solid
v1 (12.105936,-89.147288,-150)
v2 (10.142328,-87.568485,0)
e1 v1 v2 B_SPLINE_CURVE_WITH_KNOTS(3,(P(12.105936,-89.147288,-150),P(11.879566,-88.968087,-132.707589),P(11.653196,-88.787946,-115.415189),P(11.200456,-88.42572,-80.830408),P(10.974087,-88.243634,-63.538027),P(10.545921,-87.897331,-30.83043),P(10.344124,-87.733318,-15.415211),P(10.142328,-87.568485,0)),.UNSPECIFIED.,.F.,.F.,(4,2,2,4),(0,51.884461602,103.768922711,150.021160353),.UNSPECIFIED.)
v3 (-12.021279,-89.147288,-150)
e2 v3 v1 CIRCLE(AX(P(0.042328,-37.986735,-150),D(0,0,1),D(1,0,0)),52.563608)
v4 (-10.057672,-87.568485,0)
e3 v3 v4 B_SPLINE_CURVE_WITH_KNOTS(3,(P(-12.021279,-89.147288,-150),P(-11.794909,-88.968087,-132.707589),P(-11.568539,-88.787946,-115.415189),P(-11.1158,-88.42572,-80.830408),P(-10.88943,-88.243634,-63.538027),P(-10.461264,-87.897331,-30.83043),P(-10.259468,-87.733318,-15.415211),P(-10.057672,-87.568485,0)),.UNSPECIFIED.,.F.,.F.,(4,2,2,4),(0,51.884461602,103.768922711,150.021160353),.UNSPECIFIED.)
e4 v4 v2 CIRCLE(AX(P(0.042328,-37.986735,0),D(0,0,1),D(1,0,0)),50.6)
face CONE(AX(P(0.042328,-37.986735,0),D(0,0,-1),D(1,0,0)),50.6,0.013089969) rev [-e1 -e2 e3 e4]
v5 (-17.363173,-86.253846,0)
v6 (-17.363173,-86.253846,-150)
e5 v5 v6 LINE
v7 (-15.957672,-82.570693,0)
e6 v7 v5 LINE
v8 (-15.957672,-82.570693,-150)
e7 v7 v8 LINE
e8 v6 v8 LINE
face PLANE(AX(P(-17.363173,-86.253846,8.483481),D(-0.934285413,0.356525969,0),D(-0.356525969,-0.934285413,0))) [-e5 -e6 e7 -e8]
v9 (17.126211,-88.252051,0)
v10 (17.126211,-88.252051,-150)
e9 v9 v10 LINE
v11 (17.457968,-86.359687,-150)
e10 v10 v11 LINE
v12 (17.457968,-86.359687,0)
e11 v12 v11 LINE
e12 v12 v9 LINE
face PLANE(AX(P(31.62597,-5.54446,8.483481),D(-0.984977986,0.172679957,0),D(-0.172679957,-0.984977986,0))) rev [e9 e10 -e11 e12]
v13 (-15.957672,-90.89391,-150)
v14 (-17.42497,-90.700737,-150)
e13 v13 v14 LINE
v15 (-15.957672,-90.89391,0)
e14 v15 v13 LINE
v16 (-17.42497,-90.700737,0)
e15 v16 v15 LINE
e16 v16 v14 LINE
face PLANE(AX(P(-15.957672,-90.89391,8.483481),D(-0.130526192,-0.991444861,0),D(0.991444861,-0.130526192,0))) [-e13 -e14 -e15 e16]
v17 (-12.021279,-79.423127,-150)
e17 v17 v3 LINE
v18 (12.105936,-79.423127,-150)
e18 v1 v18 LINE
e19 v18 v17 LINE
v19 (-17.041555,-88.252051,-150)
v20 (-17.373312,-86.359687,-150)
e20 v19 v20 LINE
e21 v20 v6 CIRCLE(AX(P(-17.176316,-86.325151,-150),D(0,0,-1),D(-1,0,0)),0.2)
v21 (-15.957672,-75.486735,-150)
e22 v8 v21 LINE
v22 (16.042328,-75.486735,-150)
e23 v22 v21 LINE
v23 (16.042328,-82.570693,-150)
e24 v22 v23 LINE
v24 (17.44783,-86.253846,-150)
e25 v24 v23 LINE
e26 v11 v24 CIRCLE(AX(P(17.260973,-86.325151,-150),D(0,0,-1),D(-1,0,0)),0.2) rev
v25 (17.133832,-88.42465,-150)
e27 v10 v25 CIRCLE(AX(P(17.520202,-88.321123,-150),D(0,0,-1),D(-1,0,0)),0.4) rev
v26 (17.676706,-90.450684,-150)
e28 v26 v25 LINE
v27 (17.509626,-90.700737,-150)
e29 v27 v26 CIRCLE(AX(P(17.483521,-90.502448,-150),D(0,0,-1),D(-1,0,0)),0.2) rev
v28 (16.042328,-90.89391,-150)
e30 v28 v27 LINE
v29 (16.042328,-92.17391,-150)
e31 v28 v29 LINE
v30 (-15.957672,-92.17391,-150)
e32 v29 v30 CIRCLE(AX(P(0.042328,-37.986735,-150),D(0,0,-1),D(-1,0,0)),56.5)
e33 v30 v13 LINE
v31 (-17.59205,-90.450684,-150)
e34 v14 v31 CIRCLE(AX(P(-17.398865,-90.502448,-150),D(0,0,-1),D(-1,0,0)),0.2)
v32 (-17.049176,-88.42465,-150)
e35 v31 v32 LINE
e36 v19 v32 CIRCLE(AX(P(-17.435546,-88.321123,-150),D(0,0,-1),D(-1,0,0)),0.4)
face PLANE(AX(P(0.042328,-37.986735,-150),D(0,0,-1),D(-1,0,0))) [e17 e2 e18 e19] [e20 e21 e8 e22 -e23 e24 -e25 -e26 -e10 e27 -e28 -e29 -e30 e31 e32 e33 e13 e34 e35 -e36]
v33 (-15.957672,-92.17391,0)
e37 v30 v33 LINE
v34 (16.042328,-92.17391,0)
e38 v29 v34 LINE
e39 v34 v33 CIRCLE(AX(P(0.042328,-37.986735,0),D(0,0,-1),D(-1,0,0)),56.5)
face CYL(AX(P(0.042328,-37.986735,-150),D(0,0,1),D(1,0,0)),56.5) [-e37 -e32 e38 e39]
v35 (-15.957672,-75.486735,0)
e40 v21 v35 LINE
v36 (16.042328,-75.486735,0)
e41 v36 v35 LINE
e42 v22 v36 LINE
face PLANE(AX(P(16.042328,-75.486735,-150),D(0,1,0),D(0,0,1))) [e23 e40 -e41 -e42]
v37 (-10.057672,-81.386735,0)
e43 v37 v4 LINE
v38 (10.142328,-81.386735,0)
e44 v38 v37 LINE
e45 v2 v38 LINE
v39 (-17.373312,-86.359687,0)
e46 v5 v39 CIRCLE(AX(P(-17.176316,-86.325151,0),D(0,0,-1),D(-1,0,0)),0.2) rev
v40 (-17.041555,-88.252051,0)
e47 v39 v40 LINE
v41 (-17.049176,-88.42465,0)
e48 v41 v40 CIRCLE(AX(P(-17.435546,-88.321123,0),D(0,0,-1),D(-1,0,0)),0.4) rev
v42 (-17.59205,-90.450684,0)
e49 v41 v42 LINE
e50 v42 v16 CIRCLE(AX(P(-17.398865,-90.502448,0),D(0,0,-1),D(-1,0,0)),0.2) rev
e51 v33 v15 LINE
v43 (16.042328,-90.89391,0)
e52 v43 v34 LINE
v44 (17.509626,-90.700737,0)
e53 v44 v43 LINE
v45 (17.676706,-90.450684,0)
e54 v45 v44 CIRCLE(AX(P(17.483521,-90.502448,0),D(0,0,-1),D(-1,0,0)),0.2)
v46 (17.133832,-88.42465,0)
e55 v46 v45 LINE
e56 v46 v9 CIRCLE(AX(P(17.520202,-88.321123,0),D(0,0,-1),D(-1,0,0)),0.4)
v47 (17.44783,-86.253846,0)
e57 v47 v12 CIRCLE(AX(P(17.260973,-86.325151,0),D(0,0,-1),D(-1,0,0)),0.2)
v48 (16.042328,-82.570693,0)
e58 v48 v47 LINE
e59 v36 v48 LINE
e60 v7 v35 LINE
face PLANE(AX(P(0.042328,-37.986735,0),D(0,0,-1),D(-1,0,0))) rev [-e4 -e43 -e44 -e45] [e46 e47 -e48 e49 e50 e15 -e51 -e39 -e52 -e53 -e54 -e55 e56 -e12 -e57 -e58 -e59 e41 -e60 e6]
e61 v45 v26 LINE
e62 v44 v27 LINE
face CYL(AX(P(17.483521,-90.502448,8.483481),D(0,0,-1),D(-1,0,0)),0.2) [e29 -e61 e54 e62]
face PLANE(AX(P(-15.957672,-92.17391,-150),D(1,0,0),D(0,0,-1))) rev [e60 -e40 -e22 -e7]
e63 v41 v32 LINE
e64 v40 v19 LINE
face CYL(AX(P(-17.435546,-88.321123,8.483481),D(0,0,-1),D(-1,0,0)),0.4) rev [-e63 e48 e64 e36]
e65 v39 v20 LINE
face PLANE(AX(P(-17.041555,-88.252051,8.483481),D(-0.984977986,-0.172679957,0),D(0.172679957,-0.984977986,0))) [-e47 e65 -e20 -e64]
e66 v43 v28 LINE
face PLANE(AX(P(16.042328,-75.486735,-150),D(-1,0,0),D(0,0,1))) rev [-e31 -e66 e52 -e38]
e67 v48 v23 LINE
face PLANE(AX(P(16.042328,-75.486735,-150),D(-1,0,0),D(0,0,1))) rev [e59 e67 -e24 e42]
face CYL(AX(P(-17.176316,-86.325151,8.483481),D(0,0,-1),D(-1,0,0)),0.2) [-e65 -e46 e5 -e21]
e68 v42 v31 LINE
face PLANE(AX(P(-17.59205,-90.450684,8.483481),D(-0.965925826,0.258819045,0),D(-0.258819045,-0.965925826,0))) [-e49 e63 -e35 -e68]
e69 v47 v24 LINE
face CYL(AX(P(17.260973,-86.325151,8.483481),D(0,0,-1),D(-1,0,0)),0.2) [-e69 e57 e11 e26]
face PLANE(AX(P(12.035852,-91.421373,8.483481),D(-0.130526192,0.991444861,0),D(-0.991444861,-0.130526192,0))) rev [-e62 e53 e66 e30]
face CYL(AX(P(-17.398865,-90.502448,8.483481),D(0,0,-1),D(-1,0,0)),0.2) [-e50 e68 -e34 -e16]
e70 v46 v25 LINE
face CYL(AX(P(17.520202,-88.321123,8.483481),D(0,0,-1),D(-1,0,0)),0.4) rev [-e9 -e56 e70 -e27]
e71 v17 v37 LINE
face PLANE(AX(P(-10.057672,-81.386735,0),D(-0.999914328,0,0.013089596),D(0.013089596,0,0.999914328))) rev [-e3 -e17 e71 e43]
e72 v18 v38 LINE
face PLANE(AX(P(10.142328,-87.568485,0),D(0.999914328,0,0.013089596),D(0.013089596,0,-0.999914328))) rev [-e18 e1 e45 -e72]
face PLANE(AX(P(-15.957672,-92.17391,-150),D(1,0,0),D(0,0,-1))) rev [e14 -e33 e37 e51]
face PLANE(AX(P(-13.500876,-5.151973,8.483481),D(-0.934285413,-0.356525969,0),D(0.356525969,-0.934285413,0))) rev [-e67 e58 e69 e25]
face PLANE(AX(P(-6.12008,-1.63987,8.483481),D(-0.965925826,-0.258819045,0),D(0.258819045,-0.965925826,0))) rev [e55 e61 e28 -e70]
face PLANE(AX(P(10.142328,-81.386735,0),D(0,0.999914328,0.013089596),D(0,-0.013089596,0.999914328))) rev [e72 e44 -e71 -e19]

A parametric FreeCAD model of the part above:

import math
import FreeCAD as App
import Part
import Sketcher

V = App.Vector
Q = App.Units.Quantity


def faces_at(feature, points):
    """Names of the faces that lie closest to the given points."""
    faces = feature.Shape.Faces
    near = lambda p: min(range(len(faces)), key=lambda i: faces[i].distToShape(Part.Vertex(*p))[0])
    return sorted({f"Face{near(p) + 1}" for p in points})

doc = App.newDocument("Part")
params = doc.addObject("Spreadsheet::Sheet", "Params")
for row, (alias, value) in enumerate([
    ("sketch1_radius", "56.5 mm"),
    ("sketch1_width", "32 mm"),
    ("pad1_length", "150 mm"),
    ("sketch2_radius", "50.6 mm"),
    ("sketch2_width", "20.2 mm"),
    ("pad2_length", "179.003088 mm"),
    ("draft_angle", "0.75 deg"),
    ("sketch3_radius", "0.2 mm"),
    ("sketch3_radius2", "0.4 mm"),
    ("pad3_length", "150 mm"),
], start=1):
    params.set(f"A{row}", alias)
    params.set(f"B{row}", "=" + value)
    params.setAlias(f"B{row}", alias)

body = doc.addObject("PartDesign::Body", "Body")

# Sketch on XY plane
sketch1 = body.newObject("Sketcher::SketchObject", "Sketch")
sketch1.AttachmentSupport = (doc.getObject("XY_Plane"), [""])
sketch1.MapMode = "FlatFace"
sketch1.addGeometry(Part.LineSegment(V(-16, -75, 0), V(-16, -92, 0)), False)
sketch1.addGeometry(Part.ArcOfCircle(Part.Circle(V(0, -38, 0), V(0, 0, 1), 57), math.radians(-106), math.radians(-74)), False)
sketch1.addGeometry(Part.LineSegment(V(16, -92, 0), V(16, -75, 0)), False)
sketch1.addGeometry(Part.LineSegment(V(16, -75, 0), V(-16, -75, 0)), False)
sketch1.addConstraint(Sketcher.Constraint("Coincident", 0, 2, 1, 1))
sketch1.addConstraint(Sketcher.Constraint("Coincident", 1, 2, 2, 1))
sketch1.addConstraint(Sketcher.Constraint("Coincident", 2, 2, 3, 1))
sketch1.addConstraint(Sketcher.Constraint("Coincident", 3, 2, 0, 1))
sketch1.addConstraint(Sketcher.Constraint("Vertical", 0))
sketch1.addConstraint(Sketcher.Constraint("Vertical", 2))
sketch1.addConstraint(Sketcher.Constraint("Horizontal", 3))
sketch1.addConstraint(Sketcher.Constraint("Horizontal", 0, 2, 1, 2))
sketch1.addConstraint(Sketcher.Constraint("Radius", 1, 56.5))
sketch1.addConstraint(Sketcher.Constraint("DistanceX", 3, 2, 3, 1, 32.0))
sketch1.addConstraint(Sketcher.Constraint("DistanceY", 2, 2, 1, 3, 37.5))
sketch1.addConstraint(Sketcher.Constraint("DistanceX", -1, 1, 1, 3, 0.042328))
sketch1.addConstraint(Sketcher.Constraint("DistanceY", 0, 2, -1, 1, 92.17391))
sketch1.setExpression("Constraints[8]", "Params.sketch1_radius")
sketch1.setExpression("Constraints[9]", "Params.sketch1_width")
pad1 = body.newObject("PartDesign::Pad", "Pad")
pad1.Profile = sketch1
pad1.setExpression("Length", "Params.pad1_length")
pad1.Reversed = True
body2 = doc.addObject("PartDesign::Body", "Body001")

# Sketch on XY plane
sketch2 = body2.newObject("Sketcher::SketchObject", "Sketch001")
sketch2.AttachmentSupport = (doc.getObject("XY_Plane001"), [""])
sketch2.MapMode = "FlatFace"
sketch2.addGeometry(Part.LineSegment(V(10, -88, 0), V(10, -81, 0)), False)
sketch2.addGeometry(Part.LineSegment(V(10, -81, 0), V(-10, -81, 0)), False)
sketch2.addGeometry(Part.LineSegment(V(-10, -81, 0), V(-10, -88, 0)), False)
sketch2.addGeometry(Part.ArcOfCircle(Part.Circle(V(0, -38, 0), V(0, 0, 1), 51), math.radians(-102), math.radians(-78)), False)
sketch2.addConstraint(Sketcher.Constraint("Coincident", 0, 2, 1, 1))
sketch2.addConstraint(Sketcher.Constraint("Coincident", 1, 2, 2, 1))
sketch2.addConstraint(Sketcher.Constraint("Coincident", 2, 2, 3, 1))
sketch2.addConstraint(Sketcher.Constraint("Coincident", 3, 2, 0, 1))
sketch2.addConstraint(Sketcher.Constraint("Vertical", 0))
sketch2.addConstraint(Sketcher.Constraint("Horizontal", 1))
sketch2.addConstraint(Sketcher.Constraint("Vertical", 2))
sketch2.addConstraint(Sketcher.Constraint("Horizontal", 2, 2, 3, 2))
sketch2.addConstraint(Sketcher.Constraint("Radius", 3, 50.6))
sketch2.addConstraint(Sketcher.Constraint("DistanceX", 1, 2, 1, 1, 20.2))
sketch2.addConstraint(Sketcher.Constraint("DistanceY", 0, 2, 3, 3, 43.4))
sketch2.addConstraint(Sketcher.Constraint("DistanceX", -1, 1, 3, 3, 0.042328))
sketch2.addConstraint(Sketcher.Constraint("DistanceY", 3, 3, -1, 1, 37.986735))
sketch2.setExpression("Constraints[8]", "Params.sketch2_radius")
sketch2.setExpression("Constraints[9]", "Params.sketch2_width")
pad2 = body2.newObject("PartDesign::Pad", "Pad001")
pad2.Profile = sketch2
pad2.setExpression("Length", "Params.pad2_length")
pad2.Reversed = True
doc.recompute()

draft = body2.newObject("PartDesign::Draft", "Draft")
draft.Base = (pad2, faces_at(pad2, [
    (0.042, -88.587, -89.502),
    (10.142, -84.478, -89.502),
    (0.042, -81.387, -89.502),
    (-10.058, -84.478, -89.502),
]))
draft.NeutralPlane = (doc.getObject("XY_Plane001"), [""])
draft.setExpression("Angle", "Params.draft_angle")
draft.Reversed = False
doc.recompute()

boolean = body.newObject("PartDesign::Boolean", "Boolean")
boolean.Type = "Cut"
boolean.addObjects([body2])

# Sketch on XY plane
sketch3 = body.newObject("Sketcher::SketchObject", "Sketch002")
sketch3.AttachmentSupport = (doc.getObject("XY_Plane"), [""])
sketch3.MapMode = "FlatFace"
sketch3.AttachmentOffset = App.Placement(V(0, 0, -150), App.Rotation())
sketch3.addGeometry(Part.LineSegment(V(17.51, -90.7, 0), V(16.04, -90.89, 0)), False)
sketch3.addGeometry(Part.LineSegment(V(16.04, -90.89, 0), V(16.04, -82.57, 0)), False)
sketch3.addGeometry(Part.LineSegment(V(16.04, -82.57, 0), V(17.45, -86.25, 0)), False)
sketch3.addGeometry(Part.ArcOfCircle(Part.Circle(V(17.26, -86.33, 0), V(0, 0, 1), 0.2), math.radians(-10), math.radians(21)), False)
sketch3.addGeometry(Part.LineSegment(V(17.46, -86.36, 0), V(17.13, -88.25, 0)), False)
sketch3.addGeometry(Part.ArcOfCircle(Part.Circle(V(17.52, -88.32, 0), V(0, 0, 1), 0.4), math.radians(170), math.radians(195)), False)
sketch3.addGeometry(Part.LineSegment(V(17.13, -88.42, 0), V(17.68, -90.45, 0)), False)
sketch3.addGeometry(Part.ArcOfCircle(Part.Circle(V(17.48, -90.5, 0), V(0, 0, 1), 0.2), math.radians(-82), math.radians(15)), False)
sketch3.addGeometry(Part.LineSegment(V(-15.96, -82.57, 0), V(-15.96, -90.89, 0)), False)
sketch3.addGeometry(Part.LineSegment(V(-15.96, -90.89, 0), V(-17.42, -90.7, 0)), False)
sketch3.addGeometry(Part.ArcOfCircle(Part.Circle(V(-17.4, -90.5, 0), V(0, 0, 1), 0.2), math.radians(165), math.radians(262)), False)
sketch3.addGeometry(Part.LineSegment(V(-17.59, -90.45, 0), V(-17.05, -88.42, 0)), False)
sketch3.addGeometry(Part.ArcOfCircle(Part.Circle(V(-17.44, -88.32, 0), V(0, 0, 1), 0.4), math.radians(-15), math.radians(10)), False)
sketch3.addGeometry(Part.LineSegment(V(-17.04, -88.25, 0), V(-17.37, -86.36, 0)), False)
sketch3.addGeometry(Part.ArcOfCircle(Part.Circle(V(-17.18, -86.33, 0), V(0, 0, 1), 0.2), math.radians(159), math.radians(190)), False)
sketch3.addGeometry(Part.LineSegment(V(-17.36, -86.25, 0), V(-15.96, -82.57, 0)), False)
sketch3.addConstraint(Sketcher.Constraint("Coincident", 0, 2, 1, 1))
sketch3.addConstraint(Sketcher.Constraint("Coincident", 1, 2, 2, 1))
sketch3.addConstraint(Sketcher.Constraint("Tangent", 2, 2, 3, 2))
sketch3.addConstraint(Sketcher.Constraint("Tangent", 3, 1, 4, 1))
sketch3.addConstraint(Sketcher.Constraint("Tangent", 4, 2, 5, 1))
sketch3.addConstraint(Sketcher.Constraint("Tangent", 5, 2, 6, 1))
sketch3.addConstraint(Sketcher.Constraint("Tangent", 6, 2, 7, 2))
sketch3.addConstraint(Sketcher.Constraint("Tangent", 7, 1, 0, 1))
sketch3.addConstraint(Sketcher.Constraint("Coincident", 8, 2, 9, 1))
sketch3.addConstraint(Sketcher.Constraint("Tangent", 9, 2, 10, 2))
sketch3.addConstraint(Sketcher.Constraint("Tangent", 10, 1, 11, 1))
sketch3.addConstraint(Sketcher.Constraint("Tangent", 11, 2, 12, 1))
sketch3.addConstraint(Sketcher.Constraint("Tangent", 12, 2, 13, 1))
sketch3.addConstraint(Sketcher.Constraint("Tangent", 13, 2, 14, 2))
sketch3.addConstraint(Sketcher.Constraint("Tangent", 14, 1, 15, 1))
sketch3.addConstraint(Sketcher.Constraint("Coincident", 15, 2, 8, 1))
sketch3.addConstraint(Sketcher.Constraint("Vertical", 1))
sketch3.addConstraint(Sketcher.Constraint("Vertical", 8))
sketch3.addConstraint(Sketcher.Constraint("Equal", 3, 7))
sketch3.addConstraint(Sketcher.Constraint("Equal", 7, 10))
sketch3.addConstraint(Sketcher.Constraint("Equal", 5, 12))
sketch3.addConstraint(Sketcher.Constraint("Equal", 10, 14))
sketch3.addConstraint(Sketcher.Constraint("Horizontal", 7, 3, 10, 3))
sketch3.addConstraint(Sketcher.Constraint("Horizontal", 5, 3, 12, 3))
sketch3.addConstraint(Sketcher.Constraint("Horizontal", 3, 3, 14, 3))
sketch3.addConstraint(Sketcher.Constraint("Horizontal", 0, 2, 8, 2))
sketch3.addConstraint(Sketcher.Constraint("Horizontal", 6, 2, 10, 1))
sketch3.addConstraint(Sketcher.Constraint("Horizontal", 4, 2, 12, 2))
sketch3.addConstraint(Sketcher.Constraint("Horizontal", 2, 2, 14, 1))
sketch3.addConstraint(Sketcher.Constraint("Horizontal", 1, 2, 15, 2))
sketch3.addConstraint(Sketcher.Constraint("Radius", 3, 0.2))
sketch3.addConstraint(Sketcher.Constraint("Radius", 5, 0.4))
sketch3.addConstraint(Sketcher.Constraint("Angle", 6, Q("-75 deg")))
sketch3.addConstraint(Sketcher.Constraint("Angle", 0, Q("-172.5 deg")))
sketch3.addConstraint(Sketcher.Constraint("DistanceX", 8, 2, 0, 2, 32.0))
sketch3.addConstraint(Sketcher.Constraint("DistanceX", 1, 2, 2, 2, 1.405501))
sketch3.addConstraint(Sketcher.Constraint("DistanceY", 4, 2, 3, 3, 1.9269))
sketch3.addConstraint(Sketcher.Constraint("DistanceY", 5, 2, 4, 2, 0.1726))
sketch3.addConstraint(Sketcher.Constraint("DistanceX", 0, 2, 7, 1, 1.467298))
sketch3.addConstraint(Sketcher.Constraint("DistanceY", 1, 1, 1, 2, 8.323217))
sketch3.addConstraint(Sketcher.Constraint("DistanceY", 3, 3, -1, 1, 86.325151))
sketch3.addConstraint(Sketcher.Constraint("DistanceX", -1, 1, 7, 3, 17.483521))
sketch3.setExpression("Constraints[30]", "Params.sketch3_radius")
sketch3.setExpression("Constraints[31]", "Params.sketch3_radius2")
pad3 = body.newObject("PartDesign::Pad", "Pad002")
pad3.Profile = sketch3
pad3.setExpression("Length", "Params.pad3_length")

doc.recompute()
